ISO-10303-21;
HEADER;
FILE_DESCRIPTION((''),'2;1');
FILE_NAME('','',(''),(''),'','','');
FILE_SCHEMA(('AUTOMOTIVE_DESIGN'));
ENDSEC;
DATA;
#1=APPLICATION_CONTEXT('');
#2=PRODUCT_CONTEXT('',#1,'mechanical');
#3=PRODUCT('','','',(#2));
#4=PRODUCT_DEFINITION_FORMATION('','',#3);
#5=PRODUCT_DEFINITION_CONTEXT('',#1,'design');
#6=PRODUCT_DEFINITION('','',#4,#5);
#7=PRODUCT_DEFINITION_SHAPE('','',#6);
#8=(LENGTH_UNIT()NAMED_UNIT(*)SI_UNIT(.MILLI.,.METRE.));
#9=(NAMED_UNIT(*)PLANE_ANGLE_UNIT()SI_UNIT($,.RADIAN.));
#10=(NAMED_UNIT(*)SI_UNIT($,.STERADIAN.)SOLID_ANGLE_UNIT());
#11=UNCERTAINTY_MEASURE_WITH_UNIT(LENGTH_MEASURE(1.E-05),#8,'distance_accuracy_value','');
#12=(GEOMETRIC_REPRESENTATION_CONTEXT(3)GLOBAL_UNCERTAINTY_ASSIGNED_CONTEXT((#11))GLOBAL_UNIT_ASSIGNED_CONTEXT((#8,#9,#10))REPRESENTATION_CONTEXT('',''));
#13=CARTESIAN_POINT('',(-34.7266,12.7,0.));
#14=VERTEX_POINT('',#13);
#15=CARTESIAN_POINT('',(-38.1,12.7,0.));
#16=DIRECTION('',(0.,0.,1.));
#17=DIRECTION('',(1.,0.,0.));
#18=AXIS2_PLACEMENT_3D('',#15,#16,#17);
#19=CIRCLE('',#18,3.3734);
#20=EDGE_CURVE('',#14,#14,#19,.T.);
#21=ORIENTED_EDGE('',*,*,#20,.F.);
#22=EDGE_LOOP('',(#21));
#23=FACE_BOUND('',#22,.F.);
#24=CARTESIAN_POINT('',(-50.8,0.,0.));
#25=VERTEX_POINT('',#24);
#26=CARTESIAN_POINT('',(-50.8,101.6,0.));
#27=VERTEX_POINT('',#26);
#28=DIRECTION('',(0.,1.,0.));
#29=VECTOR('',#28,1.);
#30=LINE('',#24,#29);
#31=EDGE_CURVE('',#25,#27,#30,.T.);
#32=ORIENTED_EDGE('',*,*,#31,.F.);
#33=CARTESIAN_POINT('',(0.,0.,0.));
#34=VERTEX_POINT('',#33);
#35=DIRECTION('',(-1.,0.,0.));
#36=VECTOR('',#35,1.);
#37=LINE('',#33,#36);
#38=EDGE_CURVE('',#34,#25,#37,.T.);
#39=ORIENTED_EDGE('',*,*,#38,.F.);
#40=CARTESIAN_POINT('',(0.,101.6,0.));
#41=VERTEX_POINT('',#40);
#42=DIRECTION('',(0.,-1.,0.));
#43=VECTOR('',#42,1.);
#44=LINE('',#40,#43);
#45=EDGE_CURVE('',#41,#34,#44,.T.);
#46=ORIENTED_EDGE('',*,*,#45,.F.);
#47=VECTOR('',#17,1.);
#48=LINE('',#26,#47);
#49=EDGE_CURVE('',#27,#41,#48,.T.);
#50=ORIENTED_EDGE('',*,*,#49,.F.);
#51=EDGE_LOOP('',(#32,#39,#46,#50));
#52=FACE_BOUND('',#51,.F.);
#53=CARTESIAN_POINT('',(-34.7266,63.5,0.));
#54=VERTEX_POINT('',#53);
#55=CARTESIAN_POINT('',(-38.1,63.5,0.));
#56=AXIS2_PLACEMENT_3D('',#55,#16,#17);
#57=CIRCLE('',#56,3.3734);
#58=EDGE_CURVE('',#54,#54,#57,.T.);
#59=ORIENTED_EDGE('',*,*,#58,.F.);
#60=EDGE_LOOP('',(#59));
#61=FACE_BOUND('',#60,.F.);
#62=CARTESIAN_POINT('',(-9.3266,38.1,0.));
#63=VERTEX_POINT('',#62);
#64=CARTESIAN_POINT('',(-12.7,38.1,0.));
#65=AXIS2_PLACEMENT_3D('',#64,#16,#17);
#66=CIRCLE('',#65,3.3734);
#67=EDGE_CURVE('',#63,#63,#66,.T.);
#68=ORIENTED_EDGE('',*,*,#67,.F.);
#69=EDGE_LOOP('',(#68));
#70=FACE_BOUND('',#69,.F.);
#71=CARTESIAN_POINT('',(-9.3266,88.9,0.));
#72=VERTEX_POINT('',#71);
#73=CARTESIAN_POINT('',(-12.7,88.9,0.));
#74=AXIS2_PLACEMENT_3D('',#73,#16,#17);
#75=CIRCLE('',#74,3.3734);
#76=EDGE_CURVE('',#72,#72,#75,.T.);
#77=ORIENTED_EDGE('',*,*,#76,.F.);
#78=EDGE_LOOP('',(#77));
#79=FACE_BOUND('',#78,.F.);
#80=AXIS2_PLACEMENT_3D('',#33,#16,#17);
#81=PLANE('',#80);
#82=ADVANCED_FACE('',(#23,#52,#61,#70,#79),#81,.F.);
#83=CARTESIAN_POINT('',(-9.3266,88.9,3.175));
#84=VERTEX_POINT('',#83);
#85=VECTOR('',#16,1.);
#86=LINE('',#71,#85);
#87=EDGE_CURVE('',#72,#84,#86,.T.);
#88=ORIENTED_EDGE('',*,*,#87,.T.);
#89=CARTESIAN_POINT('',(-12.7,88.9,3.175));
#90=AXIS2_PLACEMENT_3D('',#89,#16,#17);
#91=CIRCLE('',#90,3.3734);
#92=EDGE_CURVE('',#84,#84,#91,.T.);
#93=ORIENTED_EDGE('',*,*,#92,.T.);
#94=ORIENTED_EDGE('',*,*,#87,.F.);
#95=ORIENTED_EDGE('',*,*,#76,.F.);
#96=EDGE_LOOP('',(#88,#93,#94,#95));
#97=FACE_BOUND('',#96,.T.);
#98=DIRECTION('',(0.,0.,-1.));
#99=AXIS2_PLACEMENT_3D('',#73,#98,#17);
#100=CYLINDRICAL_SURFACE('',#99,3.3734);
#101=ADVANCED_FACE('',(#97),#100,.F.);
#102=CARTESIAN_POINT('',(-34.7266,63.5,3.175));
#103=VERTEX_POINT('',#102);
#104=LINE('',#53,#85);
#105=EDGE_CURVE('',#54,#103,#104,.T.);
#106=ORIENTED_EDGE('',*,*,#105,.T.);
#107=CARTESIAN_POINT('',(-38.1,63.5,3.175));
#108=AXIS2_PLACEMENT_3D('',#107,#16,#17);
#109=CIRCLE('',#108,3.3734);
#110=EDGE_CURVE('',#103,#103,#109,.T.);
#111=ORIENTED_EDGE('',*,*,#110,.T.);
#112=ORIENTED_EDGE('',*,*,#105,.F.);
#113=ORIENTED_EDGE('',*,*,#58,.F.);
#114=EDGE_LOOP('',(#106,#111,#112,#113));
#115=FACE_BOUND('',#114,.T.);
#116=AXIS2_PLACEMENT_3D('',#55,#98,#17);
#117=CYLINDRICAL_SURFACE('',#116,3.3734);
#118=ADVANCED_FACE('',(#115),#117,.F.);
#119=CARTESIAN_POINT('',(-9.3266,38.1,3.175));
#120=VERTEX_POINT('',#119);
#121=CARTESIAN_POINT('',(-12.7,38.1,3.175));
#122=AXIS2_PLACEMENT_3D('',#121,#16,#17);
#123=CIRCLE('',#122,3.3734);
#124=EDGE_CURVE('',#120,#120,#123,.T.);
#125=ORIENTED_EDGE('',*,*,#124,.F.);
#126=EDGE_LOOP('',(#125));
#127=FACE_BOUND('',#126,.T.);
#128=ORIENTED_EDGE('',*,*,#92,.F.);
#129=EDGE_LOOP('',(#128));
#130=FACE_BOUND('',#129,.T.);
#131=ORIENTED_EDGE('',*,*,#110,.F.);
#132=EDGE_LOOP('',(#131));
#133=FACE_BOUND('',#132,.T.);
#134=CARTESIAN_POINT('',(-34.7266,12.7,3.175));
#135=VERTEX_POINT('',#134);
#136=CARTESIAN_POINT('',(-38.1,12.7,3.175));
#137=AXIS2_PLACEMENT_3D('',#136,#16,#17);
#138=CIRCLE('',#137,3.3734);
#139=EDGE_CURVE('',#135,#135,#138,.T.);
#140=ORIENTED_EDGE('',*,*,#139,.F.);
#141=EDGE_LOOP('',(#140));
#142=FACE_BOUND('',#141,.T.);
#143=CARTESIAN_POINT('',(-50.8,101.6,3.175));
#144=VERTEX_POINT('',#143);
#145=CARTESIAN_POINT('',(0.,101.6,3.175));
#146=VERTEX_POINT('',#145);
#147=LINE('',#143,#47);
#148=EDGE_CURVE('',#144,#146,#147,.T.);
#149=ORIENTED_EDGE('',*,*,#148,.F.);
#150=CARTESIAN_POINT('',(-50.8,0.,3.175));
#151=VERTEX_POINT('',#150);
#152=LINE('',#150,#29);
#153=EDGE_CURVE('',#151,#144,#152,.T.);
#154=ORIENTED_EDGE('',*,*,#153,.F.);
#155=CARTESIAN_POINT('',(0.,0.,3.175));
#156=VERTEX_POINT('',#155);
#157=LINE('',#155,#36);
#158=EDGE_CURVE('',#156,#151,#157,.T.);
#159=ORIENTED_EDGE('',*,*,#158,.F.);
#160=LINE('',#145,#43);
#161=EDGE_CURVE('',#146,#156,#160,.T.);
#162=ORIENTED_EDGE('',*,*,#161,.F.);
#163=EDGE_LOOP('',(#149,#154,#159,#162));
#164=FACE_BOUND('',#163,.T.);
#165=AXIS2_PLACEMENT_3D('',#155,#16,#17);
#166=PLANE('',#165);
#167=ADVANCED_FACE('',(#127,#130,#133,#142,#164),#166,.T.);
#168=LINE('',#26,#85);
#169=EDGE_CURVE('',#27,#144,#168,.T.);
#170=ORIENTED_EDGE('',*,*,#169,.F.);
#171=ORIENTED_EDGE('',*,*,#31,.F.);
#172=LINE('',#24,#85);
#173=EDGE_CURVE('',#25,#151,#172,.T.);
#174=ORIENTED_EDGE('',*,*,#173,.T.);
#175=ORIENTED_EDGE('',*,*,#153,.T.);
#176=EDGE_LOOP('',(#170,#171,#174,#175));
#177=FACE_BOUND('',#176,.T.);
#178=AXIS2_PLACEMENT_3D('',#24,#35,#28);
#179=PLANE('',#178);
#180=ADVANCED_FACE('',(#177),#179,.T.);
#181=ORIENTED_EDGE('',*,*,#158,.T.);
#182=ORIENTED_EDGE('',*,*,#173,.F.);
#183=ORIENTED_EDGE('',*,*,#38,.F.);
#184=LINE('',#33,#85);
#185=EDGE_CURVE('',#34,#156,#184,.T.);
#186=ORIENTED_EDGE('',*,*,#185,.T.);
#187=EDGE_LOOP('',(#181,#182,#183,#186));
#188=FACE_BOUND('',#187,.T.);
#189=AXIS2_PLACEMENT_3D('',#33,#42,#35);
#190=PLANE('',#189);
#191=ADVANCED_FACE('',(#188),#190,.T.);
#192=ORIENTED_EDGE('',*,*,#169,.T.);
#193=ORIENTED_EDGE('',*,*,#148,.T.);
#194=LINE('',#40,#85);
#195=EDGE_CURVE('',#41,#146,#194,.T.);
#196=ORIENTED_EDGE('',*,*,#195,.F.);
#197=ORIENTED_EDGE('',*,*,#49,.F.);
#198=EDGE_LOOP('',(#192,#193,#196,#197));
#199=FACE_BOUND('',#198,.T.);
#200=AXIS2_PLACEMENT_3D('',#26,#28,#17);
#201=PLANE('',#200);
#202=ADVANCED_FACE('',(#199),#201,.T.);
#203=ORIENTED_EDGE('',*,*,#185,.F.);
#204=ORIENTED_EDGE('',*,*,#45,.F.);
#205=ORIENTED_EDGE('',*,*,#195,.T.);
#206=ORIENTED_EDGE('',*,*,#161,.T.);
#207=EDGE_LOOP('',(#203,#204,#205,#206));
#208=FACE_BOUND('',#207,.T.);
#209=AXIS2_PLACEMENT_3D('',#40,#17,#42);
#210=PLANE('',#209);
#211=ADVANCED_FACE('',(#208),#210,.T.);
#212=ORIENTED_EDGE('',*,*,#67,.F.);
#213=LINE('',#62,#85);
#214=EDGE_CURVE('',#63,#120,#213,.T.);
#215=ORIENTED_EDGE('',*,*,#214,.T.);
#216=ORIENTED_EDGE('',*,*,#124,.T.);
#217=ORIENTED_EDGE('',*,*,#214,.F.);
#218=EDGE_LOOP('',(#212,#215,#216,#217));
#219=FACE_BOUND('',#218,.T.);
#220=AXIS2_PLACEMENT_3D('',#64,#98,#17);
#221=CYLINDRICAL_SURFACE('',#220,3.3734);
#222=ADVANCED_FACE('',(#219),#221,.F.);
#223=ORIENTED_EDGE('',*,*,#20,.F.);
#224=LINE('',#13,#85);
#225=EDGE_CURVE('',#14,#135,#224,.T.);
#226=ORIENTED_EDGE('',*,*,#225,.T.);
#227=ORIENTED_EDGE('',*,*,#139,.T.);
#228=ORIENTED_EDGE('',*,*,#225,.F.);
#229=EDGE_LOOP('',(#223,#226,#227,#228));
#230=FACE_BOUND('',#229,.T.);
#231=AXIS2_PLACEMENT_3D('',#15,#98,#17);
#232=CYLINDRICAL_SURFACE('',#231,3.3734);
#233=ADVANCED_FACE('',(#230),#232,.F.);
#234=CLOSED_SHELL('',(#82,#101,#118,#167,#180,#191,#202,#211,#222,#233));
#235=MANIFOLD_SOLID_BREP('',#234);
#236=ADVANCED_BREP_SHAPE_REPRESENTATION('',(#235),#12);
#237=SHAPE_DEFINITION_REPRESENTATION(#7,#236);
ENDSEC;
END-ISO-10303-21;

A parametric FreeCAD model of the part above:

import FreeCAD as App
import Part
import Sketcher

V = App.Vector
Q = App.Units.Quantity

doc = App.newDocument("Part")
body = doc.addObject("PartDesign::Body", "Body")

sketch1 = body.newObject("Sketcher::SketchObject", "Sketch")
sketch1.AttachmentSupport = (doc.getObject("XY_Plane"), [""])
sketch1.MapMode = "FlatFace"
sketch1.addGeometry(Part.LineSegment(V(-50.8, 0, 0), V(0, 0, 0)), False)
sketch1.addGeometry(Part.LineSegment(V(0, 0, 0), V(0, 101.6, 0)), False)
sketch1.addGeometry(Part.LineSegment(V(0, 101.6, 0), V(-50.8, 101.6, 0)), False)
sketch1.addGeometry(Part.LineSegment(V(-50.8, 101.6, 0), V(-50.8, 0, 0)), False)
sketch1.addGeometry(Part.Circle(V(-38.1, 12.7, 0), V(0, 0, 1), 3.4), False)
sketch1.addGeometry(Part.Circle(V(-12.7, 38.1, 0), V(0, 0, 1), 3.4), False)
sketch1.addGeometry(Part.Circle(V(-38.1, 63.5, 0), V(0, 0, 1), 3.4), False)
sketch1.addGeometry(Part.Circle(V(-12.7, 88.9, 0), V(0, 0, 1), 3.4), False)
sketch1.addConstraint(Sketcher.Constraint("Coincident", 0, 2, 1, 1))
sketch1.addConstraint(Sketcher.Constraint("Coincident", 1, 2, 2, 1))
sketch1.addConstraint(Sketcher.Constraint("Coincident", 2, 2, 3, 1))
sketch1.addConstraint(Sketcher.Constraint("Coincident", 3, 2, 0, 1))
sketch1.addConstraint(Sketcher.Constraint("Horizontal", 0))
sketch1.addConstraint(Sketcher.Constraint("Vertical", 1))
sketch1.addConstraint(Sketcher.Constraint("Horizontal", 2))
sketch1.addConstraint(Sketcher.Constraint("Vertical", 3))
sketch1.addConstraint(Sketcher.Constraint("Coincident", 0, 2, -1, 1))
sketch1.addConstraint(Sketcher.Constraint("Equal", 4, 5))
sketch1.addConstraint(Sketcher.Constraint("Equal", 5, 6))
sketch1.addConstraint(Sketcher.Constraint("Equal", 6, 7))
sketch1.addConstraint(Sketcher.Constraint("Vertical", 4, 3, 6, 3))
sketch1.addConstraint(Sketcher.Constraint("Vertical", 5, 3, 7, 3))
sketch1.addConstraint(Sketcher.Constraint("DistanceX", 0, 1, 0, 2, Q("2 in")))
sketch1.addConstraint(Sketcher.Constraint("DistanceY", 1, 1, 1, 2, Q("4 in")))
sketch1.addConstraint(Sketcher.Constraint("Diameter", 4, Q("0.265622 in")))
sketch1.addConstraint(Sketcher.Constraint("DistanceY", 4, 3, 6, 3, Q("2 in")))
sketch1.addConstraint(Sketcher.Constraint("DistanceY", 5, 3, 7, 3, Q("2 in")))
sketch1.addConstraint(Sketcher.Constraint("DistanceX", 4, 3, -1, 1, Q("1.5 in")))
sketch1.addConstraint(Sketcher.Constraint("DistanceY", -1, 1, 4, 3, Q("0.5 in")))
sketch1.addConstraint(Sketcher.Constraint("DistanceX", 5, 3, -1, 1, Q("0.5 in")))
sketch1.addConstraint(Sketcher.Constraint("DistanceY", -1, 1, 5, 3, Q("1.5 in")))
pad1 = body.newObject("PartDesign::Pad", "Pad")
pad1.Profile = sketch1
pad1.Length = Q("0.125 in")

doc.recompute()
